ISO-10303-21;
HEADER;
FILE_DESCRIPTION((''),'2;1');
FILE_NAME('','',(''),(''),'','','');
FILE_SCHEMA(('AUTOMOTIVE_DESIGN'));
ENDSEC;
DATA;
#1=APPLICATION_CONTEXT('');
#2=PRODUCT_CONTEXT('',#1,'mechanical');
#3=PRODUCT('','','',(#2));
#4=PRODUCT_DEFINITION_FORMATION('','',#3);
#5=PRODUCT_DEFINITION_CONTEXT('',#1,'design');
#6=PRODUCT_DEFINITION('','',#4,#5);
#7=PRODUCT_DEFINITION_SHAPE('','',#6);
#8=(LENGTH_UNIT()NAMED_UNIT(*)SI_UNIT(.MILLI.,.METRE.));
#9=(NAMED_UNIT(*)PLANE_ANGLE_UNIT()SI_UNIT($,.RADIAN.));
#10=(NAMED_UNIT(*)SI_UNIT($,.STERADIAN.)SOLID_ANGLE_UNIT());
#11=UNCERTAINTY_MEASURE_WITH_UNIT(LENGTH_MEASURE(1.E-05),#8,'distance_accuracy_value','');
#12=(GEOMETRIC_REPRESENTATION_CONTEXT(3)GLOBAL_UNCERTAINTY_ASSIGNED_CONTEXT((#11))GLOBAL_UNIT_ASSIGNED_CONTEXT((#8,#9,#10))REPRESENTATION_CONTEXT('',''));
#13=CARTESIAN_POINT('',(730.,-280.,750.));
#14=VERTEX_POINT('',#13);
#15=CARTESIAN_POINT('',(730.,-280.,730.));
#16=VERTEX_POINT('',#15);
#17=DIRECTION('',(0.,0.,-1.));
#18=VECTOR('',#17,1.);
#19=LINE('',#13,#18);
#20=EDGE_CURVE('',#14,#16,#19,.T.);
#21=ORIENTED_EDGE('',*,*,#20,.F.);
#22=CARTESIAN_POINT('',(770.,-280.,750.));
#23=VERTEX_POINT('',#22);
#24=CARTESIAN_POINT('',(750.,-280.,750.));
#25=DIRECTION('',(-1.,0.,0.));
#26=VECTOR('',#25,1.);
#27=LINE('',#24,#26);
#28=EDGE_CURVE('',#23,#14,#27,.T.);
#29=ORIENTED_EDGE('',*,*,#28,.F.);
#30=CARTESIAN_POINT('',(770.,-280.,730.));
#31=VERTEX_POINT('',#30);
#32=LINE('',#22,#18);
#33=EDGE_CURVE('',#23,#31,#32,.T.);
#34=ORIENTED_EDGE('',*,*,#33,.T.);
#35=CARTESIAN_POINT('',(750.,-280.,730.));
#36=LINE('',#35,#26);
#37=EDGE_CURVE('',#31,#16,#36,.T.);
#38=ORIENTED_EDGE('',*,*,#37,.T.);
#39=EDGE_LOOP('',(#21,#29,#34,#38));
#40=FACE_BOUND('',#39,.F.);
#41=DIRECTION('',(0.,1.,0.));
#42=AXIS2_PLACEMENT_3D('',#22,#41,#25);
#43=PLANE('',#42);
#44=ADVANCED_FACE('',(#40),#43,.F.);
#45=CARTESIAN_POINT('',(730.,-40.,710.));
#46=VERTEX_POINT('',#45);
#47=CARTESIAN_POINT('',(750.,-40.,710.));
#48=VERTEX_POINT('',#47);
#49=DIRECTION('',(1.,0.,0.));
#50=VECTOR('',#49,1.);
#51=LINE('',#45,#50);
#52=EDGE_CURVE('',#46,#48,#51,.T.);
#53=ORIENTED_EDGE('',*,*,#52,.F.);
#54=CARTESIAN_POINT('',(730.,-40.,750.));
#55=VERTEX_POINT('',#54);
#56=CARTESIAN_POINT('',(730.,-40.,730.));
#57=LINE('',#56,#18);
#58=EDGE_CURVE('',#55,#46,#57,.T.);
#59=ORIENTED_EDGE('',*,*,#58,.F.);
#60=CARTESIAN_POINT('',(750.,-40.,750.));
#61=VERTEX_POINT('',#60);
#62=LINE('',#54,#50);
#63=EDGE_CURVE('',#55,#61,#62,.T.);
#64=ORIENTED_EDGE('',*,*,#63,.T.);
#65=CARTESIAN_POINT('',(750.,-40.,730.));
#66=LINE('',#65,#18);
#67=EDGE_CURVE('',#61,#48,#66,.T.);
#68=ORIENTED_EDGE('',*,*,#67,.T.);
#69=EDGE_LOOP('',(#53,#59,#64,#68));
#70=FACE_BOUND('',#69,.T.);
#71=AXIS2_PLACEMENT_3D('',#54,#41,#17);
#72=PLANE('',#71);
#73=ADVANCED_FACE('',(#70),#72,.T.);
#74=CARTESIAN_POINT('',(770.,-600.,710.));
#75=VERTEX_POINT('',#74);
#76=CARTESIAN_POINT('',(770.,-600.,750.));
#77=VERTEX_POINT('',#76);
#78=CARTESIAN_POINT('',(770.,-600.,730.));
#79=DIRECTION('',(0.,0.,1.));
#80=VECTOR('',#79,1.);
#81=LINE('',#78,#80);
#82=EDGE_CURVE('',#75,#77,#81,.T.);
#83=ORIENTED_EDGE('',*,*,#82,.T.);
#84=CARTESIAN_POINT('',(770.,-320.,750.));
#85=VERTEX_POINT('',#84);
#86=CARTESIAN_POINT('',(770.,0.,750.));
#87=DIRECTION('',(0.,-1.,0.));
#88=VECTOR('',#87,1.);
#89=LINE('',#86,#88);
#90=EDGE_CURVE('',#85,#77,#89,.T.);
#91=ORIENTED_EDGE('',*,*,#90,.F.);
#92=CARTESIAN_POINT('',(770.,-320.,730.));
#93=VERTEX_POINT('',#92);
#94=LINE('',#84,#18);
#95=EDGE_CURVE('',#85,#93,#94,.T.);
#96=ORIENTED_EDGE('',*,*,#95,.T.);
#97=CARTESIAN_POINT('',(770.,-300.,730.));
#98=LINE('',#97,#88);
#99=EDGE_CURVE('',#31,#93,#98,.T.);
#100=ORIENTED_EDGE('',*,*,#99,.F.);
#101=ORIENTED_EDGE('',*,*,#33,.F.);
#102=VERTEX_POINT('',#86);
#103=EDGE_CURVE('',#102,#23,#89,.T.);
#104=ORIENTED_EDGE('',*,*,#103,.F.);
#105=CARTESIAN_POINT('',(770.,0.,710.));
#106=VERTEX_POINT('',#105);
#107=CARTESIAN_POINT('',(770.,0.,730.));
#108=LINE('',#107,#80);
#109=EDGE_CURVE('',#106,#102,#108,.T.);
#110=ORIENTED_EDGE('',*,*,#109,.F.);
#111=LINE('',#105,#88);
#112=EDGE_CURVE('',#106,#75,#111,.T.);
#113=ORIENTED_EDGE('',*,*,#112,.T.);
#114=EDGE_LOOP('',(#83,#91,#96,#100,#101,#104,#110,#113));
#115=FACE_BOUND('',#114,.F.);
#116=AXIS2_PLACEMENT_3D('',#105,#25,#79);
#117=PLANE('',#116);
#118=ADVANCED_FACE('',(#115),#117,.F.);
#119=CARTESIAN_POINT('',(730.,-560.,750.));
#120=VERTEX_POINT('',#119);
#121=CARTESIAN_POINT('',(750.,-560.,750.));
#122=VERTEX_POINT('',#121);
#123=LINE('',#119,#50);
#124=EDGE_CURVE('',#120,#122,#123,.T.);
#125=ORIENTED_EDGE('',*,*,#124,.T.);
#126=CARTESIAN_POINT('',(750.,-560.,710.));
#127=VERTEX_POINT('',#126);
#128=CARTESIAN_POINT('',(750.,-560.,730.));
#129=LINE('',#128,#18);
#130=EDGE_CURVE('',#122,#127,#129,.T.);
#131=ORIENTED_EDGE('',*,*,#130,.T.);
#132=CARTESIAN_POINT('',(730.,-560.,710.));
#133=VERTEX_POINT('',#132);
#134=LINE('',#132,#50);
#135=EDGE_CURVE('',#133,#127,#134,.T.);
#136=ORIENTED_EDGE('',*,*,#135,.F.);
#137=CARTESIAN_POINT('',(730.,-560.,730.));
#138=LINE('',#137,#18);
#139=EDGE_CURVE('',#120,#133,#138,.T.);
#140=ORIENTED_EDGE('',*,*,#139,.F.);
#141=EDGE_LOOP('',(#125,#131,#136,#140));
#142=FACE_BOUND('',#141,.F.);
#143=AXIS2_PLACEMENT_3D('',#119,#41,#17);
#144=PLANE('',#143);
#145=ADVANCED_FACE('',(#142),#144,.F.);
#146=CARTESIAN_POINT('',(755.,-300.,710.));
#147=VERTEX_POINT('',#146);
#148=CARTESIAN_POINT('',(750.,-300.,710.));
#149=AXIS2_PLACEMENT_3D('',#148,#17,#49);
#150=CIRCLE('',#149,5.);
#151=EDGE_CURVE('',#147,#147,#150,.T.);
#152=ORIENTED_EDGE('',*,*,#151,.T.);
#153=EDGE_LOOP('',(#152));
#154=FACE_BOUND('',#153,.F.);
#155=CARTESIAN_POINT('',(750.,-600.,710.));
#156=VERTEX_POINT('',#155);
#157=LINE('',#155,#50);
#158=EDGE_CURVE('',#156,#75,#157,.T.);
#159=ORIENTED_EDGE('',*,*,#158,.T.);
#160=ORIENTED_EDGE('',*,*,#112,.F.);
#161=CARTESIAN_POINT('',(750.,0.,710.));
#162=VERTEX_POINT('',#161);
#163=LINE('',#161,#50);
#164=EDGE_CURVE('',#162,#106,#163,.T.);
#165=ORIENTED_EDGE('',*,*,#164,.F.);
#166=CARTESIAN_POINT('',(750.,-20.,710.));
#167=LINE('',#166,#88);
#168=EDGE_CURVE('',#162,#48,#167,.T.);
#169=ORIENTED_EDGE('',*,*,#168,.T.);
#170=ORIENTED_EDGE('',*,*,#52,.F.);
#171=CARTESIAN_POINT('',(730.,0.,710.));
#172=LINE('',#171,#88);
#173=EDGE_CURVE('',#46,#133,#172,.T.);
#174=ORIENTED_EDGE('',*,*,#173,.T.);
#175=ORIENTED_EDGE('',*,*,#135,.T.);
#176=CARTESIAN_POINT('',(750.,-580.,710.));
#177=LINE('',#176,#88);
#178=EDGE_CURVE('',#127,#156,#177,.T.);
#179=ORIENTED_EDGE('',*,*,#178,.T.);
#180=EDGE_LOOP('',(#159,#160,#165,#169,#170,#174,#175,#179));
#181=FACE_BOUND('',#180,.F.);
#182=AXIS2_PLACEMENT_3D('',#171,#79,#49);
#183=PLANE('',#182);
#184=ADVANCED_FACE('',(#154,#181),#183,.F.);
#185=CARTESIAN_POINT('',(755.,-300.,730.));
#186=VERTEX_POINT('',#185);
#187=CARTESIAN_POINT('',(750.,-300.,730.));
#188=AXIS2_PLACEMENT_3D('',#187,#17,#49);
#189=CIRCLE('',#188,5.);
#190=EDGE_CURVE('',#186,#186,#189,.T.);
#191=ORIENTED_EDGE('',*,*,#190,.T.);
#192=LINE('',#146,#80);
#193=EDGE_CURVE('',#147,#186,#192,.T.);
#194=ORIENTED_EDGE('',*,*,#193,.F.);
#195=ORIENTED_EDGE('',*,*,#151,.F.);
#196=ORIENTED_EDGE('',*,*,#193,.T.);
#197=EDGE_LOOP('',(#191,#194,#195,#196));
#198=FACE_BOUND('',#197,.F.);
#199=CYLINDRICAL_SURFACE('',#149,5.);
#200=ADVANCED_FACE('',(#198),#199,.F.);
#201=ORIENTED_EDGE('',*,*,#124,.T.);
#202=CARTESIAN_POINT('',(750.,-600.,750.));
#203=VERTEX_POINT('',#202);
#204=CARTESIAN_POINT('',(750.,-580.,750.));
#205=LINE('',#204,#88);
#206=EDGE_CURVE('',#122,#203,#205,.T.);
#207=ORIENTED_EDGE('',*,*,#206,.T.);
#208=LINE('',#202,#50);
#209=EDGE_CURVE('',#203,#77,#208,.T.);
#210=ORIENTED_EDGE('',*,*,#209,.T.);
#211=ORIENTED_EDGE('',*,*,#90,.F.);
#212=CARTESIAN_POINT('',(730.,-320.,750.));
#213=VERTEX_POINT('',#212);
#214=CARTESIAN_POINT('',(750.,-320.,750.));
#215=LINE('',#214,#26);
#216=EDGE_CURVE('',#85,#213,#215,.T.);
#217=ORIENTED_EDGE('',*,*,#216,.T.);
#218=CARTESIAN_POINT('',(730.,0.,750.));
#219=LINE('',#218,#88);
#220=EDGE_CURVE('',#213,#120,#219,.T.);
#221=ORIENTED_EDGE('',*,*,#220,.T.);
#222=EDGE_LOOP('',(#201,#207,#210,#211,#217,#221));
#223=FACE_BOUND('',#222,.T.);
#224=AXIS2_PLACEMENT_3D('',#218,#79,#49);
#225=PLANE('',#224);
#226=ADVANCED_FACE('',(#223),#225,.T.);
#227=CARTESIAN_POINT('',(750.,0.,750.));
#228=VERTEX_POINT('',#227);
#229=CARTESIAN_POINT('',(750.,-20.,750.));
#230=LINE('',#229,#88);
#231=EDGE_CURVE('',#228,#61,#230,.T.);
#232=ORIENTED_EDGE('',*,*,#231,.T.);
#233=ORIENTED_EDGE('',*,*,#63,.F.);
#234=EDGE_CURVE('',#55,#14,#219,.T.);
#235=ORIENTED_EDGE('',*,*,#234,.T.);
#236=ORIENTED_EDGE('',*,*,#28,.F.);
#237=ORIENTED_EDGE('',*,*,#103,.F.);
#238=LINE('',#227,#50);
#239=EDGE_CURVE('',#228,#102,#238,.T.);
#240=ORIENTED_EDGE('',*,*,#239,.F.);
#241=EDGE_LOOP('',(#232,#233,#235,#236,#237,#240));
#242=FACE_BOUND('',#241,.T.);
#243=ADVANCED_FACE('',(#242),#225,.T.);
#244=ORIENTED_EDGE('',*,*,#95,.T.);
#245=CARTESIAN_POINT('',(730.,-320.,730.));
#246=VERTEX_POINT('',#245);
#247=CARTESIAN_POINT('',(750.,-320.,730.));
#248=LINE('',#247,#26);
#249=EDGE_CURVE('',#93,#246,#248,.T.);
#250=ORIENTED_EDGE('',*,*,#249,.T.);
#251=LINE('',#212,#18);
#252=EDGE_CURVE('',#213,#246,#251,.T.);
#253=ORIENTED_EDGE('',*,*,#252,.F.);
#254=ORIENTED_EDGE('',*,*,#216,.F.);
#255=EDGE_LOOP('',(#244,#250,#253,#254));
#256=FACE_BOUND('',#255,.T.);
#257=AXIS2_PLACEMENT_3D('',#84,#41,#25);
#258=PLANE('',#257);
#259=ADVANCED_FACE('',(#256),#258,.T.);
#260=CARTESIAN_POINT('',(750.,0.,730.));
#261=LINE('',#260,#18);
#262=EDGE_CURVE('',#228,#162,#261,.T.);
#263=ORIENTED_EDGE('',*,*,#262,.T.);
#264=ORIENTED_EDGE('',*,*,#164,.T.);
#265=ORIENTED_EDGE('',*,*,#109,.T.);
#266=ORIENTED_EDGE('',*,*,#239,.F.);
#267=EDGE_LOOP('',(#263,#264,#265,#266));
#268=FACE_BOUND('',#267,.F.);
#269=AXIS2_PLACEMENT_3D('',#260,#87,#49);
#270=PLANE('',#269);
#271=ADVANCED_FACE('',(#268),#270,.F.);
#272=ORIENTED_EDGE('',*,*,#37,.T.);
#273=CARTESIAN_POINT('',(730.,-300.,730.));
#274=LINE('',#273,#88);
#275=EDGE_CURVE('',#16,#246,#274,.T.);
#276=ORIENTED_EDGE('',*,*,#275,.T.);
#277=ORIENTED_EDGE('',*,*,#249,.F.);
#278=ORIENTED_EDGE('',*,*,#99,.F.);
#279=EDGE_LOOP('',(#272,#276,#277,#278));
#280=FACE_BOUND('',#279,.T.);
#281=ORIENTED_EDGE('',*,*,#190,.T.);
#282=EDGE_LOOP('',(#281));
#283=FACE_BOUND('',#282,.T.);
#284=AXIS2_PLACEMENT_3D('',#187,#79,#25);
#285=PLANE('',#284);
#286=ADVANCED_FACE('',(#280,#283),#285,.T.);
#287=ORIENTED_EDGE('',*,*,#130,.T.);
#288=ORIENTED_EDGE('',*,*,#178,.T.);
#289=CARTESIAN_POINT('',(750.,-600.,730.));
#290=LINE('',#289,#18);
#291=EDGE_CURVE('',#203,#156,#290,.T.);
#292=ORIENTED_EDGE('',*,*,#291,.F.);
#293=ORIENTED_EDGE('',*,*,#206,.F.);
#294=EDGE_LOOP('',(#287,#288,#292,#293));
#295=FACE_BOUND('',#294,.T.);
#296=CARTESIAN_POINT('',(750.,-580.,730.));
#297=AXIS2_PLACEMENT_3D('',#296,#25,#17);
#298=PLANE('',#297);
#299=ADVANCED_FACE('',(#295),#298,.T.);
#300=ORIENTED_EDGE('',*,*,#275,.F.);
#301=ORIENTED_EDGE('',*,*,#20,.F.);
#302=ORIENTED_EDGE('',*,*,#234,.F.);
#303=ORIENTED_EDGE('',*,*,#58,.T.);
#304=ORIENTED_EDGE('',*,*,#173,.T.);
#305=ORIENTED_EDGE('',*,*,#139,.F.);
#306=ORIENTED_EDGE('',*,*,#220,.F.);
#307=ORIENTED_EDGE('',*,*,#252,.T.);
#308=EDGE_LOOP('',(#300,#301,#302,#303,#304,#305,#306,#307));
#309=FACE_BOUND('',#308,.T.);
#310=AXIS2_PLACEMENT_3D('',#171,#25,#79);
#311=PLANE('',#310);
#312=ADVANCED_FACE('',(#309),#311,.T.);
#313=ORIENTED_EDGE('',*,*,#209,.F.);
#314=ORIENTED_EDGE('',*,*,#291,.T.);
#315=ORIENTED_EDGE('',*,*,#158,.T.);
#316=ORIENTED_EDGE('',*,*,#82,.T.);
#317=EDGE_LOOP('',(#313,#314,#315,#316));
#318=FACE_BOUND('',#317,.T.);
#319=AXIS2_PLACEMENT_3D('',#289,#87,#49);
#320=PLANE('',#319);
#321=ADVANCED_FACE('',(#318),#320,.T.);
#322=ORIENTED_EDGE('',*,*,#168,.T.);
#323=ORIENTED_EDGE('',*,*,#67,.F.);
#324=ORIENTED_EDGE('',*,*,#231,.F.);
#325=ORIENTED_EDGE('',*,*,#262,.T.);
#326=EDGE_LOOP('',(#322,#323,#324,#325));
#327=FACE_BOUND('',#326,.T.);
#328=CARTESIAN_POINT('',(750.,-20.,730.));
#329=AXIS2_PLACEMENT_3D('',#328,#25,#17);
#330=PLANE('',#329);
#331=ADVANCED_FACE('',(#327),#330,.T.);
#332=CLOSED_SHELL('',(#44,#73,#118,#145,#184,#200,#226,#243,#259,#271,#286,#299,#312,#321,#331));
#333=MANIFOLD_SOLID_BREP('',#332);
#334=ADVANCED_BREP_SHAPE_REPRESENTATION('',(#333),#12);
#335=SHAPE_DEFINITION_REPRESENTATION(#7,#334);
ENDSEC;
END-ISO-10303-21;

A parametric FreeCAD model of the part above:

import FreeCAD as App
import Part
import Sketcher
Q = App.Units.Quantity


def add_polygon(sketch, points):
    """Adds a closed chain of lines whose ends are joined by coincident constraints."""
    first, n = sketch.GeometryCount, len(points)
    for a, b in zip(points, points[1:] + points[:1]):
        sketch.addGeometry(Part.LineSegment(App.Vector(*a, 0), App.Vector(*b, 0)), False)
    for i in range(n):
        sketch.addConstraint(Sketcher.Constraint("Coincident", first + i, 2, first + (i + 1) % n, 1))

doc = App.newDocument("Part")
body = doc.addObject("PartDesign::Body", "Body")

# Sketch on XZ plane
sketch1 = body.newObject("Sketcher::SketchObject", "Sketch")
sketch1.AttachmentSupport = (doc.getObject("XZ_Plane"), [""])
sketch1.MapMode = "FlatFace"
add_polygon(sketch1, [(0, 300), (0, 260), (40, 260), (40, 300)])  # lines 0-3
sketch1.addConstraint([
    Sketcher.Constraint("Vertical", 0),
    Sketcher.Constraint("Horizontal", 1),
    Sketcher.Constraint("Vertical", 2),
    Sketcher.Constraint("Horizontal", 3),
    Sketcher.Constraint("PointOnObject", 0, 2, -2),
    Sketcher.Constraint("Equal", 3, 0),
    Sketcher.Constraint("DistanceX", 1, 1, 1, 2, Q("40 mm")),
    Sketcher.Constraint("DistanceY", -1, 1, 0, 2, Q("260 mm")),
])
pad1 = body.newObject("PartDesign::Pad", "Pad")
pad1.Profile = sketch1
pad1.Length = 600

# Sketch on YZ plane
sketch2 = body.newObject("Sketcher::SketchObject", "Sketch001")
sketch2.AttachmentSupport = (doc.getObject("YZ_Plane"), [""])
sketch2.MapMode = "FlatFace"
add_polygon(sketch2, [(-600, 300), (-560, 300), (-560, 260), (-600, 260)])  # lines 0-3
add_polygon(sketch2, [(-40, 300), (0, 300), (0, 260), (-40, 260)])  # lines 4-7
sketch2.addConstraint([
    Sketcher.Constraint("Horizontal", 0),
    Sketcher.Constraint("Vertical", 1),
    Sketcher.Constraint("Horizontal", 2),
    Sketcher.Constraint("Vertical", 3),
    Sketcher.Constraint("Horizontal", 4),
    Sketcher.Constraint("Vertical", 5),
    Sketcher.Constraint("Horizontal", 6),
    Sketcher.Constraint("Vertical", 7),
    Sketcher.Constraint("PointOnObject", 4, 2, -2),
    Sketcher.Constraint("Horizontal", 3, 2, 4, 2),
    Sketcher.Constraint("Horizontal", 2, 2, 5, 2),
    Sketcher.Constraint("Equal", 2, 4),
    Sketcher.Constraint("Equal", 6, 1),
    Sketcher.Constraint("DistanceX", 0, 1, 0, 2, Q("40 mm")),
    Sketcher.Constraint("DistanceX", 0, 2, -1, 1, Q("560 mm")),
    Sketcher.Constraint("DistanceY", -1, 1, 0, 2, Q("300 mm")),
])
pocket1 = body.newObject("PartDesign::Pocket", "Pocket")
pocket1.Profile = sketch2
pocket1.Length = 20
pocket1.Reversed = True

# Sketch on XY plane
sketch3 = body.newObject("Sketcher::SketchObject", "Sketch002")
sketch3.AttachmentSupport = (doc.getObject("XY_Plane"), [""])
sketch3.MapMode = "FlatFace"
sketch3.AttachmentOffset = App.Placement(App.Vector(0, 0, 300), App.Rotation())
add_polygon(sketch3, [(40, -320), (40, -280), (0, -280), (0, -320)])  # lines 0-3
sketch3.addConstraint([
    Sketcher.Constraint("Vertical", 0),
    Sketcher.Constraint("Horizontal", 1),
    Sketcher.Constraint("Vertical", 2),
    Sketcher.Constraint("Horizontal", 3),
    Sketcher.Constraint("PointOnObject", 1, 2, -2),
    Sketcher.Constraint("Equal", 3, 0),
    Sketcher.Constraint("DistanceX", 1, 2, 1, 1, Q("40 mm")),
    Sketcher.Constraint("DistanceY", 0, 2, -1, 1, Q("280 mm")),
])
pocket2 = body.newObject("PartDesign::Pocket", "Pocket001")
pocket2.Profile = sketch3
pocket2.Length = 20

# Sketch on XY plane
sketch4 = body.newObject("Sketcher::SketchObject", "Sketch003")
sketch4.AttachmentSupport = (doc.getObject("XY_Plane"), [""])
sketch4.MapMode = "FlatFace"
sketch4.AttachmentOffset = App.Placement(App.Vector(0, 0, 260), App.Rotation())
sketch4.addGeometry(Part.Circle(App.Vector(20, -300, 0), App.Vector(0, 0, 1), 5), False)
sketch4.addConstraint([
    Sketcher.Constraint("Diameter", 0, Q("10 mm")),
    Sketcher.Constraint("DistanceX", -1, 1, 0, 3, Q("20 mm")),
    Sketcher.Constraint("DistanceY", 0, 3, -1, 1, Q("300 mm")),
])
pocket3 = body.newObject("PartDesign::Pocket", "Pocket002")
pocket3.Profile = sketch4
pocket3.Type = "ThroughAll"
pocket3.Reversed = True
body2 = doc.addObject("PartDesign::Body", "Body001")
doc.recompute()

body.Placement = App.Placement(App.Vector(730, 0, 0), App.Rotation(App.Vector(0, 0, 1), 0))
boolean = body2.newObject("PartDesign::Boolean", "Boolean")
boolean.Type = "Fuse"
boolean.addObjects([body])
body3 = doc.addObject("PartDesign::Body", "Body002")
doc.recompute()

body2.Placement = App.Placement(App.Vector(0, 0, 450), App.Rotation(App.Vector(0, 0, 1), 0))
boolean2 = body3.newObject("PartDesign::Boolean", "Boolean001")
boolean2.Type = "Fuse"
boolean2.addObjects([body2])

doc.recompute()
